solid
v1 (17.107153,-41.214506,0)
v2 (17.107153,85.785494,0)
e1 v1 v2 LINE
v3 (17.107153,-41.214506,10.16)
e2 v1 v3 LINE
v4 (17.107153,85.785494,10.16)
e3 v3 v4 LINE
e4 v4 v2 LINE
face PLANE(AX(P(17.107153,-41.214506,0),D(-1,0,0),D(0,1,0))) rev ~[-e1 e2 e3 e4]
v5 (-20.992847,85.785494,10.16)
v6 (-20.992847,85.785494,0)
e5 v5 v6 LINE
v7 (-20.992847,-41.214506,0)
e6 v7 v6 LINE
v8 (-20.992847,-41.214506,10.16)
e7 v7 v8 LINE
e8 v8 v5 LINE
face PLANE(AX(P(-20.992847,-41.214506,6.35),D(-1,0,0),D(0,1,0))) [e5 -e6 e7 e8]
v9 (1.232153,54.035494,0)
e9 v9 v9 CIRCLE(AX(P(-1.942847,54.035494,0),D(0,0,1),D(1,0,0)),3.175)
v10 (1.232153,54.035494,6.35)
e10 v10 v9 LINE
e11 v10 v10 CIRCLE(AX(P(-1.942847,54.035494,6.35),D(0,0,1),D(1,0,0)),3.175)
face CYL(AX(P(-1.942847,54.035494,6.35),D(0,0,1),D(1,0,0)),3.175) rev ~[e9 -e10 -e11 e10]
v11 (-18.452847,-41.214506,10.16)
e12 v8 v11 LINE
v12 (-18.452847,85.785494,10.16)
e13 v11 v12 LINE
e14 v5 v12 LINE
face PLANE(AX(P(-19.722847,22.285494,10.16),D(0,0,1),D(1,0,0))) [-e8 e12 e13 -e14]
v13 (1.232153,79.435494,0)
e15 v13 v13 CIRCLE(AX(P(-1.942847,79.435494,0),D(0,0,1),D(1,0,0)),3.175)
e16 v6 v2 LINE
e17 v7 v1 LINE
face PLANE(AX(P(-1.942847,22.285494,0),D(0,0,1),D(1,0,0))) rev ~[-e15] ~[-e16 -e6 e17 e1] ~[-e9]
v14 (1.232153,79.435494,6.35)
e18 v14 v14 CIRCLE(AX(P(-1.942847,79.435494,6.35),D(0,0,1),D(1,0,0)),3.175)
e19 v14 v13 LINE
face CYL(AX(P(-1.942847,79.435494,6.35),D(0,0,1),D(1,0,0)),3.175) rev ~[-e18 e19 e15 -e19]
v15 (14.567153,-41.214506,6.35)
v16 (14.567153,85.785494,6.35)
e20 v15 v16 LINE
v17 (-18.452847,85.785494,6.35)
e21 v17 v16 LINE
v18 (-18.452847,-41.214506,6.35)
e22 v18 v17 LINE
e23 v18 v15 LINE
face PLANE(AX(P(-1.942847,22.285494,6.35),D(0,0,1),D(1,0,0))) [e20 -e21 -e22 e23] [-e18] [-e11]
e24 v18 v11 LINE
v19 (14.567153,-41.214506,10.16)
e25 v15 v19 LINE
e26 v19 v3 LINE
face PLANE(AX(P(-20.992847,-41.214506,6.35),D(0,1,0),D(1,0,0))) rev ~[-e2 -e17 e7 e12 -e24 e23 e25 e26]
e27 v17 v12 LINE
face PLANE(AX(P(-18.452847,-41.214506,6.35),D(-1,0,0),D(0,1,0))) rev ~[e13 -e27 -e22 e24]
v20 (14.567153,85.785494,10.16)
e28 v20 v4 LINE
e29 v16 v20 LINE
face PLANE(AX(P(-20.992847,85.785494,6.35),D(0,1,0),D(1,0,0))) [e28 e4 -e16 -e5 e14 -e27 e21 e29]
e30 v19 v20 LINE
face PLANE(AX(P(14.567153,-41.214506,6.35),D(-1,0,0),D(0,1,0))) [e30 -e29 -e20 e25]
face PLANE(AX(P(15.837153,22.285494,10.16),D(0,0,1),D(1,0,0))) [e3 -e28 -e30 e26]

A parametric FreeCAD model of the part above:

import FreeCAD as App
import Part
import Sketcher
Q = App.Units.Quantity

doc = App.newDocument("Part")
body = doc.addObject("PartDesign::Body", "Body")

# Sketch on XY plane
sketch1 = body.newObject("Sketcher::SketchObject", "Sketch")
sketch1.AttachmentSupport = (doc.getObject("XY_Plane"), [""])
sketch1.MapMode = "FlatFace"
sketch1.addGeometry([
    Part.LineSegment(App.Vector(-21, 86, 0), App.Vector(-21, -41, 0)),
    Part.LineSegment(App.Vector(-21, -41, 0), App.Vector(17, -41, 0)),
    Part.LineSegment(App.Vector(17, -41, 0), App.Vector(17, 86, 0)),
    Part.LineSegment(App.Vector(17, 86, 0), App.Vector(-21, 86, 0)),
], False)
sketch1.addConstraint([
    Sketcher.Constraint("Coincident", 0, 2, 1, 1),
    Sketcher.Constraint("Coincident", 1, 2, 2, 1),
    Sketcher.Constraint("Coincident", 2, 2, 3, 1),
    Sketcher.Constraint("Coincident", 3, 2, 0, 1),
    Sketcher.Constraint("Vertical", 0),
    Sketcher.Constraint("Horizontal", 1),
    Sketcher.Constraint("Vertical", 2),
    Sketcher.Constraint("Horizontal", 3),
    Sketcher.Constraint("DistanceY", 0, 2, 0, 1, Q("5 in")),
    Sketcher.Constraint("DistanceX", 1, 1, 1, 2, Q("1.5 in")),
    Sketcher.Constraint("DistanceX", 0, 2, -1, 1, Q("20.992847 mm")),
    Sketcher.Constraint("DistanceY", 0, 2, -1, 1, Q("41.214506 mm")),
])
pad1 = body.newObject("PartDesign::Pad", "Pad")
pad1.Profile = sketch1
pad1.Length = Q("0.25 in")

# Sketch on XY plane
sketch2 = body.newObject("Sketcher::SketchObject", "Sketch001")
sketch2.AttachmentSupport = (doc.getObject("XY_Plane"), [""])
sketch2.MapMode = "FlatFace"
sketch2.AttachmentOffset = App.Placement(App.Vector(0, 0, 0.25 * 25.4), App.Rotation())
sketch2.addGeometry([
    Part.LineSegment(App.Vector(-21, 85.8, 0), App.Vector(-21, -41.2, 0)),  # 0
    Part.LineSegment(App.Vector(-21, -41.2, 0), App.Vector(-18.5, -41.2, 0)),  # 1
    Part.LineSegment(App.Vector(-18.5, -41.2, 0), App.Vector(-18.5, 85.8, 0)),  # 2
    Part.LineSegment(App.Vector(-18.5, 85.8, 0), App.Vector(-21, 85.8, 0)),  # 3
    Part.LineSegment(App.Vector(14.6, 85.8, 0), App.Vector(14.6, -41.2, 0)),  # 4
    Part.LineSegment(App.Vector(14.6, -41.2, 0), App.Vector(17.1, -41.2, 0)),  # 5
    Part.LineSegment(App.Vector(17.1, -41.2, 0), App.Vector(17.1, 85.8, 0)),  # 6
    Part.LineSegment(App.Vector(17.1, 85.8, 0), App.Vector(14.6, 85.8, 0)),  # 7
], False)
sketch2.addConstraint([
    Sketcher.Constraint("Coincident", 0, 2, 1, 1),
    Sketcher.Constraint("Coincident", 1, 2, 2, 1),
    Sketcher.Constraint("Coincident", 2, 2, 3, 1),
    Sketcher.Constraint("Coincident", 3, 2, 0, 1),
    Sketcher.Constraint("Coincident", 4, 2, 5, 1),
    Sketcher.Constraint("Coincident", 5, 2, 6, 1),
    Sketcher.Constraint("Coincident", 6, 2, 7, 1),
    Sketcher.Constraint("Coincident", 7, 2, 4, 1),
    Sketcher.Constraint("Vertical", 0),
    Sketcher.Constraint("Horizontal", 1),
    Sketcher.Constraint("Vertical", 2),
    Sketcher.Constraint("Horizontal", 3),
    Sketcher.Constraint("Vertical", 4),
    Sketcher.Constraint("Horizontal", 5),
    Sketcher.Constraint("Vertical", 6),
    Sketcher.Constraint("Horizontal", 7),
    Sketcher.Constraint("Horizontal", 1, 2, 4, 2),
    Sketcher.Constraint("Horizontal", 3, 2, 6, 2),
    Sketcher.Constraint("Equal", 3, 5),
    Sketcher.Constraint("DistanceY", 0, 2, 0, 1, Q("5 in")),
    Sketcher.Constraint("DistanceX", 1, 1, 1, 2, Q("0.1 in")),
    Sketcher.Constraint("DistanceX", 1, 2, 4, 2, Q("1.3 in")),
    Sketcher.Constraint("DistanceX", 0, 2, -1, 1, Q("20.992847 mm")),
    Sketcher.Constraint("DistanceY", 0, 2, -1, 1, Q("41.214506 mm")),
])
pad2 = body.newObject("PartDesign::Pad", "Pad001")
pad2.Profile = sketch2
pad2.Length = Q("0.15 in")

# Sketch on XY plane
sketch3 = body.newObject("Sketcher::SketchObject", "Sketch002")
sketch3.AttachmentSupport = (doc.getObject("XY_Plane"), [""])
sketch3.MapMode = "FlatFace"
sketch3.AttachmentOffset = App.Placement(App.Vector(0, 0, 0.25 * 25.4), App.Rotation())
sketch3.addGeometry([
    Part.Circle(App.Vector(-1.9, 79.4, 0), App.Vector(0, 0, 1), 3.2),
    Part.Circle(App.Vector(-1.9, 54, 0), App.Vector(0, 0, 1), 3.2),
], False)
sketch3.addConstraint([
    Sketcher.Constraint("Equal", 0, 1),
    Sketcher.Constraint("Vertical", 0, 3, 1, 3),
    Sketcher.Constraint("Diameter", 0, Q("0.25 in")),
    Sketcher.Constraint("DistanceY", 1, 3, 0, 3, Q("1 in")),
    Sketcher.Constraint("DistanceX", 0, 3, -1, 1, Q("1.942847 mm")),
    Sketcher.Constraint("DistanceY", -1, 1, 0, 3, Q("79.435494 mm")),
])
pocket1 = body.newObject("PartDesign::Pocket", "Pocket")
pocket1.Profile = sketch3
pocket1.Length = Q("0.25 in")

doc.recompute()
